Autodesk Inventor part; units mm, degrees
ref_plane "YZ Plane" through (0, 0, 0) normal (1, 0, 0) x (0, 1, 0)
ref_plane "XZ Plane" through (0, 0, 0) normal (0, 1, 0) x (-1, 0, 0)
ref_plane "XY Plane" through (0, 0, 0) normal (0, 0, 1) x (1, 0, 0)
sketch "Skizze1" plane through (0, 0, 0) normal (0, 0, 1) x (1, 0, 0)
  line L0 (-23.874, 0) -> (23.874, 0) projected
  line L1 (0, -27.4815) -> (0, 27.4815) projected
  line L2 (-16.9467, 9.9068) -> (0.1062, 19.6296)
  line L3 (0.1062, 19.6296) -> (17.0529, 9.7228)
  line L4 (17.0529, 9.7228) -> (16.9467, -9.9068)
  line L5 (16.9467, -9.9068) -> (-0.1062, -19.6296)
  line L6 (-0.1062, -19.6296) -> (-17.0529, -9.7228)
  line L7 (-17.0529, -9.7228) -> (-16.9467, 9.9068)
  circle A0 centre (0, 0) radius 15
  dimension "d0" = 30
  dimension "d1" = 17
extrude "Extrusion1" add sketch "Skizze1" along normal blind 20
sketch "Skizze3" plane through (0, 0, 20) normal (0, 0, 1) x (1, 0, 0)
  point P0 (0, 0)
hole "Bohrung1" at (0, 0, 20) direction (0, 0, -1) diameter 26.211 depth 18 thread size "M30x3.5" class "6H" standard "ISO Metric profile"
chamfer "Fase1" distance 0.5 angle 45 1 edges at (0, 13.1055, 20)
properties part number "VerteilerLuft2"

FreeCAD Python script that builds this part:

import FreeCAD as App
import Part
import Sketcher
Q = App.Units.Quantity


def edges_at(feature, points):
    """Names of the edges that pass closest to the given points."""
    edges = feature.Shape.Edges
    near = lambda p: min(range(len(edges)), key=lambda i: edges[i].distToShape(Part.Vertex(*p))[0])
    return sorted({f"Edge{near(p) + 1}" for p in points})


def add_polygon(sketch, points):
    """Adds a closed chain of lines whose ends are joined by coincident constraints."""
    first, n = sketch.GeometryCount, len(points)
    for a, b in zip(points, points[1:] + points[:1]):
        sketch.addGeometry(Part.LineSegment(App.Vector(*a, 0), App.Vector(*b, 0)), False)
    for i in range(n):
        sketch.addConstraint(Sketcher.Constraint("Coincident", first + i, 2, first + (i + 1) % n, 1))

doc = App.newDocument("Part")
body = doc.addObject("PartDesign::Body", "Body")

# Sketch on XY plane
sketch1 = body.newObject("Sketcher::SketchObject", "Sketch")
sketch1.AttachmentSupport = (doc.getObject("XY_Plane"), [""])
sketch1.MapMode = "FlatFace"
add_polygon(sketch1, [(-16.9467, 9.9068), (-17.0529, -9.7228), (-0.1062, -19.6296), (16.9467, -9.9068), (17.0529, 9.7228), (0.1062, 19.6296)])  # lines 0-5
sketch1.addConstraint(Sketcher.Constraint("Symmetric", 0, 2, 3, 2, -1, 1))
sketch1.addConstraint(Sketcher.Constraint("Symmetric", 1, 2, 4, 2, -1, 1))
sketch1.addConstraint(Sketcher.Constraint("Symmetric", 2, 2, 5, 2, -1, 1))
sketch1.addConstraint(Sketcher.Constraint("Equal", 0, 1))
sketch1.addConstraint(Sketcher.Constraint("Equal", 1, 2))
sketch1.addConstraint(Sketcher.Constraint("Angle", 0, Q("-90.31 deg")))
sketch1.addConstraint(Sketcher.Constraint("Angle", 1, Q("-30.31 deg")))
sketch1.addConstraint(Sketcher.Constraint("Angle", 2, Q("29.6899 deg")))
sketch1.addConstraint(Sketcher.Constraint("Distance", 0, 19.63))
pad1 = body.newObject("PartDesign::Pad", "Pad")
pad1.Profile = sketch1
pad1.Length = 20

# Sketch on XY plane
sketch2 = body.newObject("Sketcher::SketchObject", "Sketch001")
sketch2.AttachmentSupport = (doc.getObject("XY_Plane"), [""])
sketch2.MapMode = "FlatFace"
sketch2.AttachmentOffset = App.Placement(App.Vector(0, 0, 20), App.Rotation())
sketch2.addGeometry(Part.Circle(App.Vector(0, 0, 0), App.Vector(0, 0, 1), 13.1055), False)
sketch2.addConstraint(Sketcher.Constraint("Coincident", 0, 3, -1, 1))
sketch2.addConstraint(Sketcher.Constraint("Diameter", 0, 26.211))
doc.recompute()
hole = body.newObject("PartDesign::Hole", "Hole")
hole.Profile = sketch2
hole.ThreadType = "None"
hole.Diameter = 26.211
hole.DepthType = "Dimension"
hole.Depth = 18
hole.DrillPoint = "Flat"
doc.recompute()

chamfer = body.newObject("PartDesign::Chamfer", "Chamfer")
chamfer.Base = (hole, edges_at(hole, [(0, 13.105, 20)]))
chamfer.Size = 0.5

doc.recompute()
